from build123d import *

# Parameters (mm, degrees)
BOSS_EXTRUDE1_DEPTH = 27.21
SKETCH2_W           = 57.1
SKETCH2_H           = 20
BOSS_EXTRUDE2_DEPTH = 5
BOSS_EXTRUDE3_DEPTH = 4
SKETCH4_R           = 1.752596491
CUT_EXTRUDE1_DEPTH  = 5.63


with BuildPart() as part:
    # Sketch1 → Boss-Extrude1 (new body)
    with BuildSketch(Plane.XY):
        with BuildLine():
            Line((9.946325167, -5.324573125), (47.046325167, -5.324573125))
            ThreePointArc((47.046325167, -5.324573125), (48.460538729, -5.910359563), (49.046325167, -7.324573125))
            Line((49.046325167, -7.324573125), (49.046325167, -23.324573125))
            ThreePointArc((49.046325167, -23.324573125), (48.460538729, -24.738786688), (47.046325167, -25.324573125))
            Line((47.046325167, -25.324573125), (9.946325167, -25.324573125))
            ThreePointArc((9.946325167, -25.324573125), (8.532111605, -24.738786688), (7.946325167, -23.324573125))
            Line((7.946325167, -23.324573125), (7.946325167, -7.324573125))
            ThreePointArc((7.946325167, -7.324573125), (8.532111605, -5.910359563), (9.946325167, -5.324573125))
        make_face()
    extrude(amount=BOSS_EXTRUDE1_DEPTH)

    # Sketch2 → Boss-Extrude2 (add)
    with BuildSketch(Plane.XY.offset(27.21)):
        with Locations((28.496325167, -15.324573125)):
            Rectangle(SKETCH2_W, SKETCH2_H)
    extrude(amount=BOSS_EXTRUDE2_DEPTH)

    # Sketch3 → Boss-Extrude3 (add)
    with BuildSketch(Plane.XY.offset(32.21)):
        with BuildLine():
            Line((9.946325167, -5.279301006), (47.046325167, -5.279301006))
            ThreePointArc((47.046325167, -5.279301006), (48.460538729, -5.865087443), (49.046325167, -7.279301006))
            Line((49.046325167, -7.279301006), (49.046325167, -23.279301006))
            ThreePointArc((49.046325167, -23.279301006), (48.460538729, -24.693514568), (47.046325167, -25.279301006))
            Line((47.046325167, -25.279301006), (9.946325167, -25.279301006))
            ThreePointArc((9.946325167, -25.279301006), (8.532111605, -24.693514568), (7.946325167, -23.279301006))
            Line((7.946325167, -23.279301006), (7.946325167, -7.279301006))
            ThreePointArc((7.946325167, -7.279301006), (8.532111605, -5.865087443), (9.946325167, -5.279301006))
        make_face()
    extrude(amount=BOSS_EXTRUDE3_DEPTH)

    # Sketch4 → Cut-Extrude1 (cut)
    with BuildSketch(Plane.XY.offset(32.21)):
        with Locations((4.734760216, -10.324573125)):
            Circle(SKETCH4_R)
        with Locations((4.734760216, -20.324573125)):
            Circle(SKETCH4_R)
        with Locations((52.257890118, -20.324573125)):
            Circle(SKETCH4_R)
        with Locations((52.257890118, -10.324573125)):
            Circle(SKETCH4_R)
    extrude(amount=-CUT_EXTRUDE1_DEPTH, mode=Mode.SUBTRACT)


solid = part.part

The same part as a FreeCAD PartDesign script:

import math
import FreeCAD as App
import Part
import Sketcher
from FreeCAD import Vector
Q = App.Units.Quantity

doc = App.newDocument("Part")
body = doc.addObject("PartDesign::Body", "Body")

# Sketch on XY plane
sketch1 = body.newObject("Sketcher::SketchObject", "Sketch")
sketch1.AttachmentSupport = (doc.getObject("XY_Plane"), [""])
sketch1.MapMode = "FlatFace"
sketch1.addGeometry([
    Part.LineSegment(Vector(47, -5.3, 0), Vector(9.9, -5.3, 0)),  # 0
    Part.ArcOfCircle(Part.Circle(Vector(9.9, -7.3, 0), Vector(0, 0, 1), 2), math.radians(90), math.radians(180)),  # 1
    Part.LineSegment(Vector(7.9, -7.3, 0), Vector(7.9, -23.3, 0)),  # 2
    Part.ArcOfCircle(Part.Circle(Vector(9.9, -23.3, 0), Vector(0, 0, 1), 2), math.radians(180), math.radians(270)),  # 3
    Part.LineSegment(Vector(9.9, -25.3, 0), Vector(47, -25.3, 0)),  # 4
    Part.ArcOfCircle(Part.Circle(Vector(47, -23.3, 0), Vector(0, 0, 1), 2), math.radians(-90), math.radians(0)),  # 5
    Part.LineSegment(Vector(49, -23.3, 0), Vector(49, -7.3, 0)),  # 6
    Part.ArcOfCircle(Part.Circle(Vector(47, -7.3, 0), Vector(0, 0, 1), 2), math.radians(0), math.radians(90)),  # 7
], False)
sketch1.addConstraint([
    Sketcher.Constraint("Tangent", 0, 2, 1, 1),
    Sketcher.Constraint("Tangent", 1, 2, 2, 1),
    Sketcher.Constraint("Tangent", 2, 2, 3, 1),
    Sketcher.Constraint("Tangent", 3, 2, 4, 1),
    Sketcher.Constraint("Tangent", 4, 2, 5, 1),
    Sketcher.Constraint("Tangent", 5, 2, 6, 1),
    Sketcher.Constraint("Tangent", 6, 2, 7, 1),
    Sketcher.Constraint("Tangent", 7, 2, 0, 1),
    Sketcher.Constraint("Horizontal", 0),
    Sketcher.Constraint("Vertical", 2),
    Sketcher.Constraint("Horizontal", 4),
    Sketcher.Constraint("Vertical", 6),
    Sketcher.Constraint("Equal", 1, 3),
    Sketcher.Constraint("Equal", 3, 5),
    Sketcher.Constraint("Equal", 5, 7),
    Sketcher.Constraint("Radius", 1, Q("2 mm")),
    Sketcher.Constraint("DistanceY", 2, 2, 2, 1, Q("16 mm")),
    Sketcher.Constraint("DistanceX", 0, 2, 0, 1, Q("37.1 mm")),
    Sketcher.Constraint("DistanceX", -1, 1, 1, 3, Q("9.946325 mm")),
    Sketcher.Constraint("DistanceY", 1, 3, -1, 1, Q("7.324573 mm")),
])
pad1 = body.newObject("PartDesign::Pad", "Pad")
pad1.Profile = sketch1
pad1.Length = 27.21

# Sketch on XY plane
sketch2 = body.newObject("Sketcher::SketchObject", "Sketch001")
sketch2.AttachmentSupport = (doc.getObject("XY_Plane"), [""])
sketch2.MapMode = "FlatFace"
sketch2.AttachmentOffset = App.Placement(Vector(0, 0, 27.21), App.Rotation())
sketch2.addGeometry([
    Part.LineSegment(Vector(0, -5, 0), Vector(0, -25, 0)),
    Part.LineSegment(Vector(0, -25, 0), Vector(57, -25, 0)),
    Part.LineSegment(Vector(57, -25, 0), Vector(57, -5, 0)),
    Part.LineSegment(Vector(57, -5, 0), Vector(0, -5, 0)),
], False)
sketch2.addConstraint([
    Sketcher.Constraint("Coincident", 0, 2, 1, 1),
    Sketcher.Constraint("Coincident", 1, 2, 2, 1),
    Sketcher.Constraint("Coincident", 2, 2, 3, 1),
    Sketcher.Constraint("Coincident", 3, 2, 0, 1),
    Sketcher.Constraint("Vertical", 0),
    Sketcher.Constraint("Horizontal", 1),
    Sketcher.Constraint("Vertical", 2),
    Sketcher.Constraint("Horizontal", 3),
    Sketcher.Constraint("DistanceY", 0, 2, 0, 1, Q("20 mm")),
    Sketcher.Constraint("DistanceX", 1, 1, 1, 2, Q("57.1 mm")),
    Sketcher.Constraint("DistanceX", 0, 2, -1, 1, Q("0.053675 mm")),
    Sketcher.Constraint("DistanceY", 0, 2, -1, 1, Q("25.324573 mm")),
])
pad2 = body.newObject("PartDesign::Pad", "Pad001")
pad2.Profile = sketch2
pad2.Length = 5

# Sketch on XY plane
sketch3 = body.newObject("Sketcher::SketchObject", "Sketch002")
sketch3.AttachmentSupport = (doc.getObject("XY_Plane"), [""])
sketch3.MapMode = "FlatFace"
sketch3.AttachmentOffset = App.Placement(Vector(0, 0, 32.21), App.Rotation())
sketch3.addGeometry([
    Part.LineSegment(Vector(47, -5.3, 0), Vector(9.9, -5.3, 0)),  # 0
    Part.ArcOfCircle(Part.Circle(Vector(9.9, -7.3, 0), Vector(0, 0, 1), 2), math.radians(90), math.radians(180)),  # 1
    Part.LineSegment(Vector(7.9, -7.3, 0), Vector(7.9, -23.3, 0)),  # 2
    Part.ArcOfCircle(Part.Circle(Vector(9.9, -23.3, 0), Vector(0, 0, 1), 2), math.radians(-180), math.radians(-90)),  # 3
    Part.LineSegment(Vector(9.9, -25.3, 0), Vector(47, -25.3, 0)),  # 4
    Part.ArcOfCircle(Part.Circle(Vector(47, -23.3, 0), Vector(0, 0, 1), 2), math.radians(-90), math.radians(0)),  # 5
    Part.LineSegment(Vector(49, -23.3, 0), Vector(49, -7.3, 0)),  # 6
    Part.ArcOfCircle(Part.Circle(Vector(47, -7.3, 0), Vector(0, 0, 1), 2), math.radians(0), math.radians(90)),  # 7
], False)
sketch3.addConstraint([
    Sketcher.Constraint("Tangent", 0, 2, 1, 1),
    Sketcher.Constraint("Tangent", 1, 2, 2, 1),
    Sketcher.Constraint("Tangent", 2, 2, 3, 1),
    Sketcher.Constraint("Tangent", 3, 2, 4, 1),
    Sketcher.Constraint("Tangent", 4, 2, 5, 1),
    Sketcher.Constraint("Tangent", 5, 2, 6, 1),
    Sketcher.Constraint("Tangent", 6, 2, 7, 1),
    Sketcher.Constraint("Tangent", 7, 2, 0, 1),
    Sketcher.Constraint("Horizontal", 0),
    Sketcher.Constraint("Vertical", 2),
    Sketcher.Constraint("Horizontal", 4),
    Sketcher.Constraint("Vertical", 6),
    Sketcher.Constraint("Equal", 1, 3),
    Sketcher.Constraint("Equal", 3, 5),
    Sketcher.Constraint("Equal", 5, 7),
    Sketcher.Constraint("Radius", 1, Q("2 mm")),
    Sketcher.Constraint("DistanceY", 2, 2, 2, 1, Q("16 mm")),
    Sketcher.Constraint("DistanceX", 0, 2, 0, 1, Q("37.1 mm")),
    Sketcher.Constraint("DistanceY", 1, 3, -1, 1, Q("7.279301 mm")),
    Sketcher.Constraint("DistanceX", -1, 1, 1, 3, Q("9.946325 mm")),
])
pad3 = body.newObject("PartDesign::Pad", "Pad002")
pad3.Profile = sketch3
pad3.Length = 4

# Sketch on XY plane
sketch4 = body.newObject("Sketcher::SketchObject", "Sketch003")
sketch4.AttachmentSupport = (doc.getObject("XY_Plane"), [""])
sketch4.MapMode = "FlatFace"
sketch4.AttachmentOffset = App.Placement(Vector(0, 0, 32.21), App.Rotation())
sketch4.addGeometry([
    Part.Circle(Vector(4.7, -10.3, 0), Vector(0, 0, 1), 1.8),
    Part.Circle(Vector(4.7, -20.3, 0), Vector(0, 0, 1), 1.8),
    Part.Circle(Vector(52.3, -20.3, 0), Vector(0, 0, 1), 1.8),
    Part.Circle(Vector(52.3, -10.3, 0), Vector(0, 0, 1), 1.8),
], False)
sketch4.addConstraint([
    Sketcher.Constraint("Equal", 0, 1),
    Sketcher.Constraint("Equal", 1, 2),
    Sketcher.Constraint("Equal", 2, 3),
    Sketcher.Constraint("Horizontal", 1, 3, 2, 3),
    Sketcher.Constraint("Horizontal", 0, 3, 3, 3),
    Sketcher.Constraint("Vertical", 0, 3, 1, 3),
    Sketcher.Constraint("Vertical", 2, 3, 3, 3),
    Sketcher.Constraint("DistanceY", 1, 3, 0, 3, Q("10 mm")),
    Sketcher.Constraint("Diameter", 0, Q("3.505193 mm")),
    Sketcher.Constraint("DistanceX", -1, 1, 0, 3, Q("4.73476 mm")),
    Sketcher.Constraint("DistanceX", -1, 1, 2, 3, Q("52.25789 mm")),
    Sketcher.Constraint("DistanceY", 0, 3, -1, 1, Q("10.324573 mm")),
])
pocket1 = body.newObject("PartDesign::Pocket", "Pocket")
pocket1.Profile = sketch4
pocket1.Length = 5.63

doc.recompute()
